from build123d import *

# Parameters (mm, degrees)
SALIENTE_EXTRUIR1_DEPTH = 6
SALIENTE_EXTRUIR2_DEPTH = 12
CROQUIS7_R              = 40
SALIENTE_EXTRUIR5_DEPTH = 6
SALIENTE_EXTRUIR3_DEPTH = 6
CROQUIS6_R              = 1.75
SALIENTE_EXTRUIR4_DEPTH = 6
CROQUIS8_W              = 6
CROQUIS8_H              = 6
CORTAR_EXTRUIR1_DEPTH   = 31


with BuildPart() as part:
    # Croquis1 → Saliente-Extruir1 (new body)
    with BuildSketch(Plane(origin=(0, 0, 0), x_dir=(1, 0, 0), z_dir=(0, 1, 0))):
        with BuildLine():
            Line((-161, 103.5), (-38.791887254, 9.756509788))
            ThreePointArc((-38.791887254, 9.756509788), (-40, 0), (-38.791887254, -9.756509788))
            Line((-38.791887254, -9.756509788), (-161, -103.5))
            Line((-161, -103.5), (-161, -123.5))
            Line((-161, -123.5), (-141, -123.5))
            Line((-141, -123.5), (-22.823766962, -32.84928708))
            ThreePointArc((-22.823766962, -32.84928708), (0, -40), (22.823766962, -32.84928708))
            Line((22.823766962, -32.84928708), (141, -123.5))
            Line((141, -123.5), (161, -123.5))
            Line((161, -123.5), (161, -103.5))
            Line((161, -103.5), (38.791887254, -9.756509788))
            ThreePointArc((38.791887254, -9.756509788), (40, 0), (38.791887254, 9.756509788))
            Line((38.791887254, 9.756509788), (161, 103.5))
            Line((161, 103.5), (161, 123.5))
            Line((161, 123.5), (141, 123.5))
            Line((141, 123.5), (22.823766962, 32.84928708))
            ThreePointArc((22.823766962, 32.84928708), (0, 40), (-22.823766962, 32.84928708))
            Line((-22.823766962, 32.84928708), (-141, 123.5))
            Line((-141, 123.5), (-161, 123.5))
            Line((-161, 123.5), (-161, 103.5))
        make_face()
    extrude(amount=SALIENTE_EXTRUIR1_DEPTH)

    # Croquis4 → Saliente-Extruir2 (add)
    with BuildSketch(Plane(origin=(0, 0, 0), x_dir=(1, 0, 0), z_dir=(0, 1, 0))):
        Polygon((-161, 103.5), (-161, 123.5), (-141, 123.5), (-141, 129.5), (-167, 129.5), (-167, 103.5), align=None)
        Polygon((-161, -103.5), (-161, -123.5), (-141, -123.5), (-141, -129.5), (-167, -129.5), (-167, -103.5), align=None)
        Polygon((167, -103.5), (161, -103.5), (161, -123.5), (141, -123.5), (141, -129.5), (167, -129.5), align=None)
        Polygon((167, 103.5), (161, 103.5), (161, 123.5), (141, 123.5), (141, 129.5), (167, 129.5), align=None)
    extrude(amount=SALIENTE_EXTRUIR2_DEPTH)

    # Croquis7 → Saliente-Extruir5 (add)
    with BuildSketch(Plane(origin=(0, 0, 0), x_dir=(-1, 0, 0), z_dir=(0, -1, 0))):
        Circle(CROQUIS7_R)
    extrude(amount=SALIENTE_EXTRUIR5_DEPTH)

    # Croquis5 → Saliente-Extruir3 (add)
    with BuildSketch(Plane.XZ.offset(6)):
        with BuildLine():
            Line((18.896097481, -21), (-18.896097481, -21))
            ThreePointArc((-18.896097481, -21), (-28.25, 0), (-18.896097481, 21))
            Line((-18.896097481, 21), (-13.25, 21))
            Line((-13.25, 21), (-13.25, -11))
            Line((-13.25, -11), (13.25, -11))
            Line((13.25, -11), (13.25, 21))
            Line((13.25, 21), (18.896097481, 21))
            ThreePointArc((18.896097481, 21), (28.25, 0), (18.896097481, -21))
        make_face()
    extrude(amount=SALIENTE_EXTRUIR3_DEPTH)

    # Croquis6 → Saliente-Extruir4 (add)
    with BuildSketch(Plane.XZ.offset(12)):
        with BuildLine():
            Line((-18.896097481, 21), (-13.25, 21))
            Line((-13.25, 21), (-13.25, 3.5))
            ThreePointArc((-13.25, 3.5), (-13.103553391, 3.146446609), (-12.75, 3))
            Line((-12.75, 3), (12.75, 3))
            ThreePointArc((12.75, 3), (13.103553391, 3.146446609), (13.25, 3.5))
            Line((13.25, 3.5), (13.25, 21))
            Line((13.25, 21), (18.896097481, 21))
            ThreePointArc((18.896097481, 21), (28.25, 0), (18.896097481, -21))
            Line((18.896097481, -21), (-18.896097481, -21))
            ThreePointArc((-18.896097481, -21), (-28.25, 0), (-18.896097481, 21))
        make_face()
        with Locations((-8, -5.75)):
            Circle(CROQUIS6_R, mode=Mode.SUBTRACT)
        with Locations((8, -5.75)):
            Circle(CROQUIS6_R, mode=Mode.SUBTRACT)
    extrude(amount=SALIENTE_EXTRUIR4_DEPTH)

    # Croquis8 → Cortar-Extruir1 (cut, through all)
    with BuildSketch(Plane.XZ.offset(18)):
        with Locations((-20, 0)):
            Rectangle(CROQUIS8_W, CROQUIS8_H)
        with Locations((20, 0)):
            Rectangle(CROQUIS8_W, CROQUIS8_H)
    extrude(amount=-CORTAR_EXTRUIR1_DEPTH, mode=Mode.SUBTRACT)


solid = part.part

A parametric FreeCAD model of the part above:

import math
import FreeCAD as App
import Part
import Sketcher
Q = App.Units.Quantity


def add_polygon(sketch, points):
    """Adds a closed chain of lines whose ends are joined by coincident constraints."""
    first, n = sketch.GeometryCount, len(points)
    for a, b in zip(points, points[1:] + points[:1]):
        sketch.addGeometry(Part.LineSegment(App.Vector(*a, 0), App.Vector(*b, 0)), False)
    for i in range(n):
        sketch.addConstraint(Sketcher.Constraint("Coincident", first + i, 2, first + (i + 1) % n, 1))

doc = App.newDocument("Part")
params = doc.addObject("Spreadsheet::Sheet", "Params")
for row, (alias, value) in enumerate([
    ("sketch1_radius", "40 mm"),
    ("sketch1_width", "20 mm"),
    ("pad1_length", "6 mm"),
    ("sketch2_width", "20 mm"),
    ("sketch2_width2", "26 mm"),
    ("pad2_length", "12 mm"),
    ("sketch3_diameter", "80 mm"),
    ("pad3_length", "6 mm"),
    ("sketch4_height", "32 mm"),
    ("sketch4_radius", "28.25 mm"),
    ("sketch4_width", "26.5 mm"),
    ("pad4_length", "6 mm"),
    ("sketch5_diameter", "3.5 mm"),
    ("sketch5_radius", "0.5 mm"),
    ("sketch5_radius2", "28.25 mm"),
    ("sketch5_width", "25.5 mm"),
    ("sketch5_height", "17.5 mm"),
    ("pad5_length", "6 mm"),
    ("sketch6_width", "6 mm"),
], start=1):
    params.set(f"A{row}", alias)
    params.set(f"B{row}", "=" + value)
    params.setAlias(f"B{row}", alias)

body = doc.addObject("PartDesign::Body", "Body")

# Sketch on XZ plane
sketch1 = body.newObject("Sketcher::SketchObject", "Sketch")
sketch1.AttachmentSupport = (doc.getObject("XZ_Plane"), [""])
sketch1.MapMode = "FlatFace"
sketch1.addGeometry([
    Part.LineSegment(App.Vector(-161, -103.5, 0), App.Vector(-38.791887, -9.75651, 0)),  # 0
    Part.ArcOfCircle(Part.Circle(App.Vector(0, 0, 0), App.Vector(0, 0, 1), 40), math.radians(165.882411), math.radians(194.117589)),  # 1
    Part.LineSegment(App.Vector(-38.791887, 9.75651, 0), App.Vector(-161, 103.5, 0)),  # 2
    Part.LineSegment(App.Vector(-161, 103.5, 0), App.Vector(-161, 123.5, 0)),  # 3
    Part.LineSegment(App.Vector(-161, 123.5, 0), App.Vector(-141, 123.5, 0)),  # 4
    Part.LineSegment(App.Vector(-141, 123.5, 0), App.Vector(-22.823767, 32.849287, 0)),  # 5
    Part.ArcOfCircle(Part.Circle(App.Vector(0, 0, 0), App.Vector(0, 0, 1), 40), math.radians(55.20833), math.radians(124.79167)),  # 6
    Part.LineSegment(App.Vector(22.823767, 32.849287, 0), App.Vector(141, 123.5, 0)),  # 7
    Part.LineSegment(App.Vector(141, 123.5, 0), App.Vector(161, 123.5, 0)),  # 8
    Part.LineSegment(App.Vector(161, 123.5, 0), App.Vector(161, 103.5, 0)),  # 9
    Part.LineSegment(App.Vector(161, 103.5, 0), App.Vector(38.791887, 9.75651, 0)),  # 10
    Part.ArcOfCircle(Part.Circle(App.Vector(0, 0, 0), App.Vector(0, 0, 1), 40), math.radians(-14.117589), math.radians(14.117589)),  # 11
    Part.LineSegment(App.Vector(38.791887, -9.75651, 0), App.Vector(161, -103.5, 0)),  # 12
    Part.LineSegment(App.Vector(161, -103.5, 0), App.Vector(161, -123.5, 0)),  # 13
    Part.LineSegment(App.Vector(161, -123.5, 0), App.Vector(141, -123.5, 0)),  # 14
    Part.LineSegment(App.Vector(141, -123.5, 0), App.Vector(22.823767, -32.849287, 0)),  # 15
    Part.ArcOfCircle(Part.Circle(App.Vector(0, 0, 0), App.Vector(0, 0, 1), 40), math.radians(-124.79167), math.radians(-55.20833)),  # 16
    Part.LineSegment(App.Vector(-22.823767, -32.849287, 0), App.Vector(-141, -123.5, 0)),  # 17
    Part.LineSegment(App.Vector(-141, -123.5, 0), App.Vector(-161, -123.5, 0)),  # 18
    Part.LineSegment(App.Vector(-161, -123.5, 0), App.Vector(-161, -103.5, 0)),  # 19
], False)
sketch1.addConstraint([
    Sketcher.Constraint("Coincident", 0, 2, 1, 2),
    Sketcher.Constraint("Coincident", 1, 1, 2, 1),
    Sketcher.Constraint("Coincident", 2, 2, 3, 1),
    Sketcher.Constraint("Coincident", 3, 2, 4, 1),
    Sketcher.Constraint("Coincident", 4, 2, 5, 1),
    Sketcher.Constraint("Coincident", 5, 2, 6, 2),
    Sketcher.Constraint("Coincident", 6, 1, 7, 1),
    Sketcher.Constraint("Coincident", 7, 2, 8, 1),
    Sketcher.Constraint("Coincident", 8, 2, 9, 1),
    Sketcher.Constraint("Coincident", 9, 2, 10, 1),
    Sketcher.Constraint("Coincident", 10, 2, 11, 2),
    Sketcher.Constraint("Coincident", 11, 1, 12, 1),
    Sketcher.Constraint("Coincident", 12, 2, 13, 1),
    Sketcher.Constraint("Coincident", 13, 2, 14, 1),
    Sketcher.Constraint("Coincident", 14, 2, 15, 1),
    Sketcher.Constraint("Coincident", 15, 2, 16, 2),
    Sketcher.Constraint("Coincident", 16, 1, 17, 1),
    Sketcher.Constraint("Coincident", 17, 2, 18, 1),
    Sketcher.Constraint("Coincident", 18, 2, 19, 1),
    Sketcher.Constraint("Coincident", 19, 2, 0, 1),
    Sketcher.Constraint("Vertical", 3),
    Sketcher.Constraint("Horizontal", 4),
    Sketcher.Constraint("Horizontal", 8),
    Sketcher.Constraint("Vertical", 9),
    Sketcher.Constraint("Vertical", 13),
    Sketcher.Constraint("Horizontal", 14),
    Sketcher.Constraint("Horizontal", 18),
    Sketcher.Constraint("Vertical", 19),
    Sketcher.Constraint("Coincident", 1, 3, -1, 1),
    Sketcher.Constraint("Coincident", 6, 3, -1, 1),
    Sketcher.Constraint("Coincident", 11, 3, -1, 1),
    Sketcher.Constraint("Coincident", 16, 3, -1, 1),
    Sketcher.Constraint("Equal", 1, 6),
    Sketcher.Constraint("Equal", 6, 11),
    Sketcher.Constraint("Equal", 11, 16),
    Sketcher.Constraint("Symmetric", 2, 2, 12, 2, -1, 1),
    Sketcher.Constraint("Symmetric", 4, 2, 14, 2, -1, 1),
    Sketcher.Constraint("Symmetric", 7, 2, 17, 2, -1, 1),
    Sketcher.Constraint("Symmetric", 9, 2, 19, 2, -1, 1),
    Sketcher.Constraint("Symmetric", 4, 2, 7, 2, -2),
    Sketcher.Constraint("Symmetric", 2, 2, 9, 2, -2),
    Sketcher.Constraint("Parallel", 2, 5),
    Sketcher.Constraint("Parallel", 0, 7),
    Sketcher.Constraint("Parallel", 7, 10),
    Sketcher.Constraint("Parallel", 5, 12),
    Sketcher.Constraint("Parallel", 12, 15),
    Sketcher.Constraint("Parallel", 10, 17),
    Sketcher.Constraint("Horizontal", 5, 2, 6, 1),
    Sketcher.Constraint("Equal", 18, 3),
    Sketcher.Constraint("Radius", 1, Q("40 mm")),
    Sketcher.Constraint("DistanceX", 4, 1, 4, 2, Q("20 mm")),
    Sketcher.Constraint("DistanceX", 2, 2, -1, 1, Q("161 mm")),
    Sketcher.Constraint("DistanceY", -1, 1, 2, 2, Q("103.5 mm")),
    Sketcher.Constraint("Distance", 5, Q("148.940169 mm")),
])
sketch1.setExpression("Constraints[49]", "Params.sketch1_radius")
sketch1.setExpression("Constraints[50]", "Params.sketch1_width")
pad1 = body.newObject("PartDesign::Pad", "Pad")
pad1.Profile = sketch1
pad1.setExpression("Length", "Params.pad1_length")
pad1.Reversed = True

# Sketch on XZ plane
sketch2 = body.newObject("Sketcher::SketchObject", "Sketch001")
sketch2.AttachmentSupport = (doc.getObject("XZ_Plane"), [""])
sketch2.MapMode = "FlatFace"
add_polygon(sketch2, [(-161, -103.5), (-161, -123.5), (-141, -123.5), (-141, -129.5), (-167, -129.5), (-167, -103.5)])  # lines 0-5
add_polygon(sketch2, [(-161, 123.5), (-161, 103.5), (-167, 103.5), (-167, 129.5), (-141, 129.5), (-141, 123.5)])  # lines 6-11
add_polygon(sketch2, [(167, 103.5), (161, 103.5), (161, 123.5), (141, 123.5), (141, 129.5), (167, 129.5)])  # lines 12-17
add_polygon(sketch2, [(161, -103.5), (167, -103.5), (167, -129.5), (141, -129.5), (141, -123.5), (161, -123.5)])  # lines 18-23
sketch2.addConstraint([
    Sketcher.Constraint("Vertical", 0),
    Sketcher.Constraint("Horizontal", 1),
    Sketcher.Constraint("Vertical", 2),
    Sketcher.Constraint("Horizontal", 3),
    Sketcher.Constraint("Vertical", 4),
    Sketcher.Constraint("Horizontal", 5),
    Sketcher.Constraint("Vertical", 6),
    Sketcher.Constraint("Horizontal", 7),
    Sketcher.Constraint("Vertical", 8),
    Sketcher.Constraint("Horizontal", 9),
    Sketcher.Constraint("Vertical", 10),
    Sketcher.Constraint("Horizontal", 11),
    Sketcher.Constraint("Horizontal", 12),
    Sketcher.Constraint("Vertical", 13),
    Sketcher.Constraint("Horizontal", 14),
    Sketcher.Constraint("Vertical", 15),
    Sketcher.Constraint("Horizontal", 16),
    Sketcher.Constraint("Vertical", 17),
    Sketcher.Constraint("Horizontal", 18),
    Sketcher.Constraint("Vertical", 19),
    Sketcher.Constraint("Horizontal", 20),
    Sketcher.Constraint("Vertical", 21),
    Sketcher.Constraint("Horizontal", 22),
    Sketcher.Constraint("Vertical", 23),
    Sketcher.Constraint("Symmetric", 5, 2, 12, 2, -1, 1),
    Sketcher.Constraint("Symmetric", 1, 2, 14, 2, -1, 1),
    Sketcher.Constraint("Symmetric", 3, 2, 16, 2, -1, 1),
    Sketcher.Constraint("Symmetric", 7, 2, 18, 2, -1, 1),
    Sketcher.Constraint("Symmetric", 9, 2, 20, 2, -1, 1),
    Sketcher.Constraint("Symmetric", 11, 2, 22, 2, -1, 1),
    Sketcher.Constraint("Symmetric", 6, 2, 12, 2, -2),
    Sketcher.Constraint("Symmetric", 10, 2, 14, 2, -2),
    Sketcher.Constraint("Symmetric", 8, 2, 16, 2, -2),
    Sketcher.Constraint("Equal", 22, 0),
    Sketcher.Constraint("Equal", 18, 2),
    Sketcher.Constraint("DistanceX", 1, 1, 1, 2, Q("20 mm")),
    Sketcher.Constraint("DistanceX", 3, 2, 3, 1, Q("26 mm")),
    Sketcher.Constraint("DistanceX", 0, 2, -1, 1, Q("161 mm")),
    Sketcher.Constraint("DistanceY", 5, 2, 6, 2, Q("207 mm")),
])
sketch2.setExpression("Constraints[59]", "Params.sketch2_width")
sketch2.setExpression("Constraints[60]", "Params.sketch2_width2")
pad2 = body.newObject("PartDesign::Pad", "Pad001")
pad2.Profile = sketch2
pad2.setExpression("Length", "Params.pad2_length")
pad2.Reversed = True

# Sketch on XZ plane
sketch3 = body.newObject("Sketcher::SketchObject", "Sketch002")
sketch3.AttachmentSupport = (doc.getObject("XZ_Plane"), [""])
sketch3.MapMode = "FlatFace"
sketch3.addGeometry(Part.Circle(App.Vector(0, 0, 0), App.Vector(0, 0, 1), 40), False)
sketch3.addConstraint([
    Sketcher.Constraint("Coincident", 0, 3, -1, 1),
    Sketcher.Constraint("Diameter", 0, Q("80 mm")),
])
sketch3.setExpression("Constraints[1]", "Params.sketch3_diameter")
pad3 = body.newObject("PartDesign::Pad", "Pad002")
pad3.Profile = sketch3
pad3.setExpression("Length", "Params.pad3_length")

# Sketch on XZ plane
sketch4 = body.newObject("Sketcher::SketchObject", "Sketch003")
sketch4.AttachmentSupport = (doc.getObject("XZ_Plane"), [""])
sketch4.MapMode = "FlatFace"
sketch4.AttachmentOffset = App.Placement(App.Vector(0, 0, 6), App.Rotation())
sketch4.addGeometry([
    Part.LineSegment(App.Vector(-18.896097, -21, 0), App.Vector(18.896097, -21, 0)),  # 0
    Part.ArcOfCircle(Part.Circle(App.Vector(0, 0, 0), App.Vector(0, 0, 1), 28.25), math.radians(-48.018671), math.radians(48.018671)),  # 1
    Part.LineSegment(App.Vector(18.896097, 21, 0), App.Vector(13.25, 21, 0)),  # 2
    Part.LineSegment(App.Vector(13.25, 21, 0), App.Vector(13.25, -11, 0)),  # 3
    Part.LineSegment(App.Vector(13.25, -11, 0), App.Vector(-13.25, -11, 0)),  # 4
    Part.LineSegment(App.Vector(-13.25, -11, 0), App.Vector(-13.25, 21, 0)),  # 5
    Part.LineSegment(App.Vector(-13.25, 21, 0), App.Vector(-18.896097, 21, 0)),  # 6
    Part.ArcOfCircle(Part.Circle(App.Vector(0, 0, 0), App.Vector(0, 0, 1), 28.25), math.radians(131.981329), math.radians(228.018671)),  # 7
], False)
sketch4.addConstraint([
    Sketcher.Constraint("Coincident", 0, 2, 1, 1),
    Sketcher.Constraint("Coincident", 1, 2, 2, 1),
    Sketcher.Constraint("Coincident", 2, 2, 3, 1),
    Sketcher.Constraint("Coincident", 3, 2, 4, 1),
    Sketcher.Constraint("Coincident", 4, 2, 5, 1),
    Sketcher.Constraint("Coincident", 5, 2, 6, 1),
    Sketcher.Constraint("Coincident", 6, 2, 7, 1),
    Sketcher.Constraint("Coincident", 7, 2, 0, 1),
    Sketcher.Constraint("Horizontal", 0),
    Sketcher.Constraint("Horizontal", 2),
    Sketcher.Constraint("Vertical", 3),
    Sketcher.Constraint("Horizontal", 4),
    Sketcher.Constraint("Vertical", 5),
    Sketcher.Constraint("Horizontal", 6),
    Sketcher.Constraint("Coincident", 1, 3, -1, 1),
    Sketcher.Constraint("Coincident", 7, 3, -1, 1),
    Sketcher.Constraint("Equal", 1, 7),
    Sketcher.Constraint("Symmetric", 2, 2, 5, 2, -2),
    Sketcher.Constraint("Vertical", 0, 2, 1, 2),
    Sketcher.Constraint("DistanceY", 3, 2, 3, 1, Q("32 mm")),
    Sketcher.Constraint("Radius", 1, Q("28.25 mm")),
    Sketcher.Constraint("DistanceX", 4, 2, 4, 1, Q("26.5 mm")),
    Sketcher.Constraint("DistanceY", 0, 2, -1, 1, Q("21 mm")),
])
sketch4.setExpression("Constraints[19]", "Params.sketch4_height")
sketch4.setExpression("Constraints[20]", "Params.sketch4_radius")
sketch4.setExpression("Constraints[21]", "Params.sketch4_width")
pad4 = body.newObject("PartDesign::Pad", "Pad003")
pad4.Profile = sketch4
pad4.setExpression("Length", "Params.pad4_length")

# Sketch on XZ plane
sketch5 = body.newObject("Sketcher::SketchObject", "Sketch004")
sketch5.AttachmentSupport = (doc.getObject("XZ_Plane"), [""])
sketch5.MapMode = "FlatFace"
sketch5.AttachmentOffset = App.Placement(App.Vector(0, 0, 12), App.Rotation())
sketch5.addGeometry([
    Part.LineSegment(App.Vector(-13.25, 21, 0), App.Vector(-18.896097, 21, 0)),  # 0
    Part.ArcOfCircle(Part.Circle(App.Vector(0, 0, 0), App.Vector(0, 0, 1), 28.25), math.radians(131.981329), math.radians(228.018671)),  # 1
    Part.LineSegment(App.Vector(-18.896097, -21, 0), App.Vector(18.896097, -21, 0)),  # 2
    Part.ArcOfCircle(Part.Circle(App.Vector(0, 0, 0), App.Vector(0, 0, 1), 28.25), math.radians(-48.018671), math.radians(48.018671)),  # 3
    Part.LineSegment(App.Vector(18.896097, 21, 0), App.Vector(13.25, 21, 0)),  # 4
    Part.LineSegment(App.Vector(13.25, 21, 0), App.Vector(13.25, 3.5, 0)),  # 5
    Part.ArcOfCircle(Part.Circle(App.Vector(12.75, 3.5, 0), App.Vector(0, 0, 1), 0.5), math.radians(-90), math.radians(0)),  # 6
    Part.LineSegment(App.Vector(12.75, 3, 0), App.Vector(-12.75, 3, 0)),  # 7
    Part.ArcOfCircle(Part.Circle(App.Vector(-12.75, 3.5, 0), App.Vector(0, 0, 1), 0.5), math.radians(180), math.radians(270)),  # 8
    Part.LineSegment(App.Vector(-13.25, 3.5, 0), App.Vector(-13.25, 21, 0)),  # 9
    Part.Circle(App.Vector(8, -5.75, 0), App.Vector(0, 0, 1), 1.75),  # 10
    Part.Circle(App.Vector(-8, -5.75, 0), App.Vector(0, 0, 1), 1.75),  # 11
], False)
sketch5.addConstraint([
    Sketcher.Constraint("Coincident", 0, 2, 1, 1),
    Sketcher.Constraint("Coincident", 1, 2, 2, 1),
    Sketcher.Constraint("Coincident", 2, 2, 3, 1),
    Sketcher.Constraint("Coincident", 3, 2, 4, 1),
    Sketcher.Constraint("Coincident", 4, 2, 5, 1),
    Sketcher.Constraint("Tangent", 5, 2, 6, 2),
    Sketcher.Constraint("Tangent", 6, 1, 7, 1),
    Sketcher.Constraint("Tangent", 7, 2, 8, 2),
    Sketcher.Constraint("Tangent", 8, 1, 9, 1),
    Sketcher.Constraint("Coincident", 9, 2, 0, 1),
    Sketcher.Constraint("Horizontal", 0),
    Sketcher.Constraint("Horizontal", 2),
    Sketcher.Constraint("Horizontal", 4),
    Sketcher.Constraint("Vertical", 5),
    Sketcher.Constraint("Horizontal", 7),
    Sketcher.Constraint("Vertical", 9),
    Sketcher.Constraint("Coincident", 1, 3, -1, 1),
    Sketcher.Constraint("Coincident", 3, 3, -1, 1),
    Sketcher.Constraint("Equal", 1, 3),
    Sketcher.Constraint("Equal", 6, 8),
    Sketcher.Constraint("Equal", 10, 11),
    Sketcher.Constraint("Symmetric", 10, 3, 11, 3, -2),
    Sketcher.Constraint("Symmetric", 4, 2, 9, 2, -2),
    Sketcher.Constraint("Vertical", 0, 2, 1, 2),
    Sketcher.Constraint("Diameter", 10, Q("3.5 mm")),
    Sketcher.Constraint("Radius", 6, Q("0.5 mm")),
    Sketcher.Constraint("Radius", 1, Q("28.25 mm")),
    Sketcher.Constraint("DistanceX", 7, 2, 7, 1, Q("25.5 mm")),
    Sketcher.Constraint("DistanceY", 5, 2, 5, 1, Q("17.5 mm")),
    Sketcher.Constraint("DistanceX", -1, 1, 10, 3, Q("8 mm")),
    Sketcher.Constraint("DistanceY", -1, 1, 0, 2, Q("21 mm")),
    Sketcher.Constraint("DistanceY", 10, 3, -1, 1, Q("5.75 mm")),
])
sketch5.setExpression("Constraints[24]", "Params.sketch5_diameter")
sketch5.setExpression("Constraints[25]", "Params.sketch5_radius")
sketch5.setExpression("Constraints[26]", "Params.sketch5_radius2")
sketch5.setExpression("Constraints[27]", "Params.sketch5_width")
sketch5.setExpression("Constraints[28]", "Params.sketch5_height")
pad5 = body.newObject("PartDesign::Pad", "Pad004")
pad5.Profile = sketch5
pad5.setExpression("Length", "Params.pad5_length")

# Sketch on XZ plane
sketch6 = body.newObject("Sketcher::SketchObject", "Sketch005")
sketch6.AttachmentSupport = (doc.getObject("XZ_Plane"), [""])
sketch6.MapMode = "FlatFace"
sketch6.AttachmentOffset = App.Placement(App.Vector(0, 0, 18), App.Rotation())
add_polygon(sketch6, [(-23, 3), (-23, -3), (-17, -3), (-17, 3)])  # lines 0-3
add_polygon(sketch6, [(17, 3), (17, -3), (23, -3), (23, 3)])  # lines 4-7
sketch6.addConstraint([
    Sketcher.Constraint("Vertical", 0),
    Sketcher.Constraint("Horizontal", 1),
    Sketcher.Constraint("Vertical", 2),
    Sketcher.Constraint("Horizontal", 3),
    Sketcher.Constraint("Vertical", 4),
    Sketcher.Constraint("Horizontal", 5),
    Sketcher.Constraint("Vertical", 6),
    Sketcher.Constraint("Horizontal", 7),
    Sketcher.Constraint("Symmetric", 2, 2, 4, 2, -1, 1),
    Sketcher.Constraint("Symmetric", 0, 2, 6, 2, -1, 1),
    Sketcher.Constraint("Horizontal", 1, 2, 4, 2),
    Sketcher.Constraint("Equal", 7, 0),
    Sketcher.Constraint("DistanceX", 1, 1, 1, 2, Q("6 mm")),
    Sketcher.Constraint("DistanceX", 0, 2, -1, 1, Q("23 mm")),
])
sketch6.setExpression("Constraints[20]", "Params.sketch6_width")
pocket1 = body.newObject("PartDesign::Pocket", "Pocket")
pocket1.Profile = sketch6
pocket1.Type = "ThroughAll"

doc.recompute()
